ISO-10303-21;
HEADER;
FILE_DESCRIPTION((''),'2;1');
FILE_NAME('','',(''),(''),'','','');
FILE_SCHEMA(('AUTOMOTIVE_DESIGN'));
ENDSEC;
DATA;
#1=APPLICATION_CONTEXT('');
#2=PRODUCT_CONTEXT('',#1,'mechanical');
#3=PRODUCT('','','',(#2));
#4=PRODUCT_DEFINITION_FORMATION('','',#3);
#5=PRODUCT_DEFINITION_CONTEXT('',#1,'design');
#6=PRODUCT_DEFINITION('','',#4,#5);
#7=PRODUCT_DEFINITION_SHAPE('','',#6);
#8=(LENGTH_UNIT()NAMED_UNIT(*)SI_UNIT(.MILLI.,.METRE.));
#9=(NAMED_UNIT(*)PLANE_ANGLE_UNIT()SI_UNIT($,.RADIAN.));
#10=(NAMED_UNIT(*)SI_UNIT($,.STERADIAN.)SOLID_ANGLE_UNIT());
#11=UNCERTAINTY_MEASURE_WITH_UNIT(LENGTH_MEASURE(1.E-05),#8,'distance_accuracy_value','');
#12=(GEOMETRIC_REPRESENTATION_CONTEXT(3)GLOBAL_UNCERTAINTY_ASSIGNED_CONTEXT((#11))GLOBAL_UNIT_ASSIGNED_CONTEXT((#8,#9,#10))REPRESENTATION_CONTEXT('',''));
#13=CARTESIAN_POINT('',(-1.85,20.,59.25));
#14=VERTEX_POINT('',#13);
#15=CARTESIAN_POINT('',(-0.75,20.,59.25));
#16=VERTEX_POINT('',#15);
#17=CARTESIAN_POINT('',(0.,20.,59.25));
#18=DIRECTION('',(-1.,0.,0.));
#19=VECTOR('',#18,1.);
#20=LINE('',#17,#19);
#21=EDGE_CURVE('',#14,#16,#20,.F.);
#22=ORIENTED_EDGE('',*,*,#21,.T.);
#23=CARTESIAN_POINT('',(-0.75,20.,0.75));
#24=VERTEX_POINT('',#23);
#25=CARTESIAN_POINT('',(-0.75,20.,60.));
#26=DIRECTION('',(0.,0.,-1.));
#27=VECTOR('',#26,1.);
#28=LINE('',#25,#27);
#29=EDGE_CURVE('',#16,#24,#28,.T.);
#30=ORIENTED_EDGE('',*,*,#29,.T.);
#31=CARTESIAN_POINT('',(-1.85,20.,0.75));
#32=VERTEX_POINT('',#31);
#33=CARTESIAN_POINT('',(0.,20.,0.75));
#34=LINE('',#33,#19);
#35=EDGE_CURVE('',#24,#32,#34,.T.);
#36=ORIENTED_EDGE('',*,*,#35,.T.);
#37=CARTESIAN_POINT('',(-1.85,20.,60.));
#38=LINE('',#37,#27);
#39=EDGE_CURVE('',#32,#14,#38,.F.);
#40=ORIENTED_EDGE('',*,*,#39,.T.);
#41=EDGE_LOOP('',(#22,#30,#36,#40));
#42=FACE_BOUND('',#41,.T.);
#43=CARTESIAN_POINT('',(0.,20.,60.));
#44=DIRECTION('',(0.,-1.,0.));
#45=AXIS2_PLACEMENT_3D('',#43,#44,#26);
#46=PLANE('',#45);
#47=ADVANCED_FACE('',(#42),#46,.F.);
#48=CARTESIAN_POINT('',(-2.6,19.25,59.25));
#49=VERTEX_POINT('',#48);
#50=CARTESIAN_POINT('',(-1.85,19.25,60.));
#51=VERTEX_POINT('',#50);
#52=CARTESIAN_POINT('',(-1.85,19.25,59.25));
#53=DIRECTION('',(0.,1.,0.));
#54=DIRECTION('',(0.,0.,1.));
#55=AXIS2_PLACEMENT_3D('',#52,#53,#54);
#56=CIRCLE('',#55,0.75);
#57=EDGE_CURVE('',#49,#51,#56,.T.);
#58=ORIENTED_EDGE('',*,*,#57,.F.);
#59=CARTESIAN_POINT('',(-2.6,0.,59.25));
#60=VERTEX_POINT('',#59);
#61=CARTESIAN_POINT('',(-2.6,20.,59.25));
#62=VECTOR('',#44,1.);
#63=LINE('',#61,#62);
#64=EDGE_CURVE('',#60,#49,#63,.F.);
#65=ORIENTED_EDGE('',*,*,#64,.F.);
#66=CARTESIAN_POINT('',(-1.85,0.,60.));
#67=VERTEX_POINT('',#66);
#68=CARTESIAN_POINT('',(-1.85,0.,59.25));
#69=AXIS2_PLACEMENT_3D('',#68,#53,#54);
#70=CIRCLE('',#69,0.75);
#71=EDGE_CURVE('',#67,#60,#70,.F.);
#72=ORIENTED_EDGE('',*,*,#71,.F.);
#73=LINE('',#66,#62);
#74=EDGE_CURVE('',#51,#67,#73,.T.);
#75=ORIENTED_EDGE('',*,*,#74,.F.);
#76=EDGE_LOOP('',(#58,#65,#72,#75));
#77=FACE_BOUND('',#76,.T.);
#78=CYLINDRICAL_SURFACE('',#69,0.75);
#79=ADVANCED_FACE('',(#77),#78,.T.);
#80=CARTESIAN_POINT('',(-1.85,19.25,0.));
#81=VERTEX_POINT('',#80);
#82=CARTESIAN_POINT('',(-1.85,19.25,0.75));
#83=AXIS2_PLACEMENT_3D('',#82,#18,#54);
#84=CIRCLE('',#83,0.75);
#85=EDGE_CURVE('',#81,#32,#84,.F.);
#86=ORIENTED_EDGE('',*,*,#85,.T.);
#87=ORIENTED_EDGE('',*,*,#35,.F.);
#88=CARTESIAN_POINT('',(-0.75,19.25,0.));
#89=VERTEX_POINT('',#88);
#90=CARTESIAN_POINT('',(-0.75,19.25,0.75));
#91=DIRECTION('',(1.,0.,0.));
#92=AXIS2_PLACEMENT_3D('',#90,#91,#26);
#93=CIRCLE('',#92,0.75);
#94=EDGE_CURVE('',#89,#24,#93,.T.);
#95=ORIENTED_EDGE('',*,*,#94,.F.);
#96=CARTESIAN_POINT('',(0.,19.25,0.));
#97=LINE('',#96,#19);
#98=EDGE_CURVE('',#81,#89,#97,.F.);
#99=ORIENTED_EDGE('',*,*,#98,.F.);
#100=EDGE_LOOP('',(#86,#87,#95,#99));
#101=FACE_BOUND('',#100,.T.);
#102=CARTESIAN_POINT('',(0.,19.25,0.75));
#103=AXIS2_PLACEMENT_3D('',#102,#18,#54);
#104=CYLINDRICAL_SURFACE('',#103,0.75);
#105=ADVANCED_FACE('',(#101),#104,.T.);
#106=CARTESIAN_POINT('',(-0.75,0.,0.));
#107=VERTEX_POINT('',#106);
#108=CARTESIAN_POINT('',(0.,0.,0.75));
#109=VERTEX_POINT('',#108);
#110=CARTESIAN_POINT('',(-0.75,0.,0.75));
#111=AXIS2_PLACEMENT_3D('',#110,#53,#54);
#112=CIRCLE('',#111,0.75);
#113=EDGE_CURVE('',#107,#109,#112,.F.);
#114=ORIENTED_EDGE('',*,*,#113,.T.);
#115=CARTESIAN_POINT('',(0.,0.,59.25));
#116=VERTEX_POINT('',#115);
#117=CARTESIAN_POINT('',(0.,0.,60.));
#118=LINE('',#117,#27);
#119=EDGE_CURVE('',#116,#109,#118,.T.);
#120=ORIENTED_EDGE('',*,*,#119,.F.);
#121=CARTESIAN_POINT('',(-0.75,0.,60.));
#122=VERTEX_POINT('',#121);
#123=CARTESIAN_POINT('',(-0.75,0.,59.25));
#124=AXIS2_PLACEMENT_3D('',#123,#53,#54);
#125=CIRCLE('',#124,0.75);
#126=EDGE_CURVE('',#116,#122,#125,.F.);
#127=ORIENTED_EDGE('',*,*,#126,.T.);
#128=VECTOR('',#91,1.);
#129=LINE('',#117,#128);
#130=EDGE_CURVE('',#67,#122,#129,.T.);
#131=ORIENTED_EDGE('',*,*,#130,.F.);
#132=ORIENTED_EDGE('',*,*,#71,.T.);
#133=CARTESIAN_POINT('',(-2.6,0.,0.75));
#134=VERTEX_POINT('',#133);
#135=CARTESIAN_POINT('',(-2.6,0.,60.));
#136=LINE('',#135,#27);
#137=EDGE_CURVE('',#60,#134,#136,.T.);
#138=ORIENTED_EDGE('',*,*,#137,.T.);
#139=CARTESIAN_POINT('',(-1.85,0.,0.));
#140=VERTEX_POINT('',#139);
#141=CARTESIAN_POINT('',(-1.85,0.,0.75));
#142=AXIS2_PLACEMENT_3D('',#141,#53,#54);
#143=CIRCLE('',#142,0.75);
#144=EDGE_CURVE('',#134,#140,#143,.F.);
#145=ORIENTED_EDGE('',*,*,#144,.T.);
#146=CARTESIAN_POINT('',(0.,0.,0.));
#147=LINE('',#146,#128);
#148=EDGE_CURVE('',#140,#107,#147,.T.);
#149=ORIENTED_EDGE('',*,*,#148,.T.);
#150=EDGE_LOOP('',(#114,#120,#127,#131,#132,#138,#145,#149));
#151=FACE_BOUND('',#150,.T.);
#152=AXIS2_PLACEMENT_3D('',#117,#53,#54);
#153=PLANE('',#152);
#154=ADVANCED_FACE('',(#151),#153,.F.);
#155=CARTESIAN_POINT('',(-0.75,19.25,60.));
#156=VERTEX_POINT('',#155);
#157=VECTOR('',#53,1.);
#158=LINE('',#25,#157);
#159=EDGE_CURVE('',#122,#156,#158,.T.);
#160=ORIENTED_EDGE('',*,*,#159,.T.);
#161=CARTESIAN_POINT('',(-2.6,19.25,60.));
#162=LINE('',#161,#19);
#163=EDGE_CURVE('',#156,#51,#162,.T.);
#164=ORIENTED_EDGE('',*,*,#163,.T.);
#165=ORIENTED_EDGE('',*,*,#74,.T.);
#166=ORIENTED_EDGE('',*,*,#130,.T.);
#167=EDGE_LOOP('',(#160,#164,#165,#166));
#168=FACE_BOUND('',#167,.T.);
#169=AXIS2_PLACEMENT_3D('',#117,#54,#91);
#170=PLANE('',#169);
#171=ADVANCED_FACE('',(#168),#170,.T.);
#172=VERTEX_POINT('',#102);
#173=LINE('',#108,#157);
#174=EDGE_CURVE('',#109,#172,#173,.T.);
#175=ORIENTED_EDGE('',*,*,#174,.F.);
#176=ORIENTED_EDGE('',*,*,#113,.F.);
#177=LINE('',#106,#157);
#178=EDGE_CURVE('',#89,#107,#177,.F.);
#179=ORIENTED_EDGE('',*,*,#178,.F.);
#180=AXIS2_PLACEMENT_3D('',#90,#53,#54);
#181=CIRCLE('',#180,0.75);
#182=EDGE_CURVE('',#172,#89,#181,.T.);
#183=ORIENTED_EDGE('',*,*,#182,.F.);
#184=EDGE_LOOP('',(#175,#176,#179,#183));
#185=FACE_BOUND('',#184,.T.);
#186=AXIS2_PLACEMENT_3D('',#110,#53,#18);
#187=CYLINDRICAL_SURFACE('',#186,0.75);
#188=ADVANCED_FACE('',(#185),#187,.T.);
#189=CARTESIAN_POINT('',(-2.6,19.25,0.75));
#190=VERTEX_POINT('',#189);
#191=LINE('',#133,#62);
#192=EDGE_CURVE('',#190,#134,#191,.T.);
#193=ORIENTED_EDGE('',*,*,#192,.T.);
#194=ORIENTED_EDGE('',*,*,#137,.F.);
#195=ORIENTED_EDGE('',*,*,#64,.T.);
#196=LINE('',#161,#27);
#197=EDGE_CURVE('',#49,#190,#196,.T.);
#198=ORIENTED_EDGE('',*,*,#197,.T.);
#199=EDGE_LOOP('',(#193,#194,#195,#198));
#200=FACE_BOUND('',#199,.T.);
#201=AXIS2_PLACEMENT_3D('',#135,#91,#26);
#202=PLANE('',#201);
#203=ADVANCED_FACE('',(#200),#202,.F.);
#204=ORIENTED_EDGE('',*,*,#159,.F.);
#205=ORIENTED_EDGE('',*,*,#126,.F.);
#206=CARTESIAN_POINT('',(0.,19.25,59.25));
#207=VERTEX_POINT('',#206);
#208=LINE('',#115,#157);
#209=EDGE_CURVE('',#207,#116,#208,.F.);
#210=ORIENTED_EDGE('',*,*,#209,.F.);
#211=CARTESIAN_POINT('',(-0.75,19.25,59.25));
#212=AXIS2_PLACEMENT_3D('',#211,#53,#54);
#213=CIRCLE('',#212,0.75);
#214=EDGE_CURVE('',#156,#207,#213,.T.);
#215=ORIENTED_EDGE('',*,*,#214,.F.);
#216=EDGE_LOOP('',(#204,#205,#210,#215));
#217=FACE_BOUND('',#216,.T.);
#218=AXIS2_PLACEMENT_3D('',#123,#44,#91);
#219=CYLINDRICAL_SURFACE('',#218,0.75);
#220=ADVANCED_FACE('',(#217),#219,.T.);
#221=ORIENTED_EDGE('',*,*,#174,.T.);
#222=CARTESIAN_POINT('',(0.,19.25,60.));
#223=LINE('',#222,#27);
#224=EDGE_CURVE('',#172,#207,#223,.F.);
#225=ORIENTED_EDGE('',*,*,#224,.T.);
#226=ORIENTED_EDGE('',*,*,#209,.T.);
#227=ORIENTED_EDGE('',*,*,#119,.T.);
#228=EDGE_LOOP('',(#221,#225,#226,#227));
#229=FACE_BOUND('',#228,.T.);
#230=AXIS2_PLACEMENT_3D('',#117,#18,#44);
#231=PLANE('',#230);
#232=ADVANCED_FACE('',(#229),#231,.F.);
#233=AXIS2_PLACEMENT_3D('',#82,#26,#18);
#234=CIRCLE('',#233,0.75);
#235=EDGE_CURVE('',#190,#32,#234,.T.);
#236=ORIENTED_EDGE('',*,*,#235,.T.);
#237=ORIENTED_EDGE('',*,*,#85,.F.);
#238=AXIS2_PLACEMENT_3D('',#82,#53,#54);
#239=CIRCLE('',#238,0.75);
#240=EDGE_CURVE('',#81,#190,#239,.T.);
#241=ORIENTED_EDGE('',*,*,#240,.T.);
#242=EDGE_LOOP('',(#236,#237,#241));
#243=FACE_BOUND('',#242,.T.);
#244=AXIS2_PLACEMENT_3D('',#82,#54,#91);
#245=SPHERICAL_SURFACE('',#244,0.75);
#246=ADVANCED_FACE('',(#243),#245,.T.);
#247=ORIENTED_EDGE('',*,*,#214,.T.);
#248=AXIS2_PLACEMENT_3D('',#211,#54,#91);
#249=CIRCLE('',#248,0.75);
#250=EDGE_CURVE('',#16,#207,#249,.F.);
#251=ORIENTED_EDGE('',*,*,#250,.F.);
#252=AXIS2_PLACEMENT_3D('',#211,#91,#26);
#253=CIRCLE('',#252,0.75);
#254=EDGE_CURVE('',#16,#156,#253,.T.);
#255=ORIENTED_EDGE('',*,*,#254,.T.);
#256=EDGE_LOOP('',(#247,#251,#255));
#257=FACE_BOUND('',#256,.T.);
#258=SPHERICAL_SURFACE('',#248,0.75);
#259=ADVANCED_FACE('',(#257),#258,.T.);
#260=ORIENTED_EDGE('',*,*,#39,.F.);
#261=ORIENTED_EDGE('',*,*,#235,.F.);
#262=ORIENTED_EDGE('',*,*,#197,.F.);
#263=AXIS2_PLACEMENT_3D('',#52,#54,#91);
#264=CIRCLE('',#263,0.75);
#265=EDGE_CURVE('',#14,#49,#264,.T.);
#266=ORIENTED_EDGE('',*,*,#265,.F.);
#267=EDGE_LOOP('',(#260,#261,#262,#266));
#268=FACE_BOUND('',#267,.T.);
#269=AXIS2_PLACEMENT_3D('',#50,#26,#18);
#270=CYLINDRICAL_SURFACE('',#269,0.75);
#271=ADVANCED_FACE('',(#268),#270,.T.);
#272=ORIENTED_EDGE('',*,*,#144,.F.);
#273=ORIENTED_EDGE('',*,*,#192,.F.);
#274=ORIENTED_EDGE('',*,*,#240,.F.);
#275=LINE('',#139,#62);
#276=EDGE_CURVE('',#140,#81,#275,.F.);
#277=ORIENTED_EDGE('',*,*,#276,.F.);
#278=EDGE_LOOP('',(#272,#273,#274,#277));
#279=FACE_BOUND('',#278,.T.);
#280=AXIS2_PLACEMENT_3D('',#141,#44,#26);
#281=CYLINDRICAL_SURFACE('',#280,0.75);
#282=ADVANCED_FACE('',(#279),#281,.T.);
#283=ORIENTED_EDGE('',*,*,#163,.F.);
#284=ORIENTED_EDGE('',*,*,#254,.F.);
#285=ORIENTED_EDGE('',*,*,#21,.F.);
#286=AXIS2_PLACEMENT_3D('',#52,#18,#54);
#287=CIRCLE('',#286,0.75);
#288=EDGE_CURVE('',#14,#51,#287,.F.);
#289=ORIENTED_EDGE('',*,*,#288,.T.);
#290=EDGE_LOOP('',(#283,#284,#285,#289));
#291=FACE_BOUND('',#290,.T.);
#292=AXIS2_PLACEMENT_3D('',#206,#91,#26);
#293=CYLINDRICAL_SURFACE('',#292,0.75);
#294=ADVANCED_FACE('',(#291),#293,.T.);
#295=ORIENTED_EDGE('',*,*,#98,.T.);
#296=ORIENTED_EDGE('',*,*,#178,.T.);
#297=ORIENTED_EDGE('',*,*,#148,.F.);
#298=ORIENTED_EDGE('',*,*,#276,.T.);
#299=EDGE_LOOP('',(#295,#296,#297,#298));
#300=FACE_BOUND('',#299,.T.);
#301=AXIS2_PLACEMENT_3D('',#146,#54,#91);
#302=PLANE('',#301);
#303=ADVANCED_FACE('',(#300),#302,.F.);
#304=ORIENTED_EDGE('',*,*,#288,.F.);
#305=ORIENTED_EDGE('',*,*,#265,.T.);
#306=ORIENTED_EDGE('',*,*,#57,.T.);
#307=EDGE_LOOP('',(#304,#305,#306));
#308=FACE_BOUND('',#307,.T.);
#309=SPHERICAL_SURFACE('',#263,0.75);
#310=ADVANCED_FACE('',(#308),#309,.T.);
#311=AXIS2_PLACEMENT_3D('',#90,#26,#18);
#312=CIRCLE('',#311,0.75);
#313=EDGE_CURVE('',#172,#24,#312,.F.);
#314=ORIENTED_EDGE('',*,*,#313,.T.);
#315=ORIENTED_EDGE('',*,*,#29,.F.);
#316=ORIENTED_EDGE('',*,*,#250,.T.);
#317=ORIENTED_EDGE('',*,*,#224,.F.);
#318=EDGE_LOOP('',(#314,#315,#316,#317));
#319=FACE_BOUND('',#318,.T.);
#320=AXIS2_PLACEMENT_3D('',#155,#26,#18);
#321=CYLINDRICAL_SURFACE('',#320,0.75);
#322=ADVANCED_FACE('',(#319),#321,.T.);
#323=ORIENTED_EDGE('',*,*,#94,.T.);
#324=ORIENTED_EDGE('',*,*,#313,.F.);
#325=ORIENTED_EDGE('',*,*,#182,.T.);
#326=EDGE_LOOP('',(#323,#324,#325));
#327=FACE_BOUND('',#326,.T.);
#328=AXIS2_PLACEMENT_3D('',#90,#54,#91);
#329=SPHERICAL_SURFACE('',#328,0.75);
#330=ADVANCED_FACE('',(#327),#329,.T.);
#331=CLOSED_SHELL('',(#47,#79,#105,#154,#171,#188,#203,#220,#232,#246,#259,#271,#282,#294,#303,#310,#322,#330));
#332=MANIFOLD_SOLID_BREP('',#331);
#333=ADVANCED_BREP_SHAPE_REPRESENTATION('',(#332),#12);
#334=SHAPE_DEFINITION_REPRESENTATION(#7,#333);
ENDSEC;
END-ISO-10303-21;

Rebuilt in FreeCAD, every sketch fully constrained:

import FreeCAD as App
import Part
import Sketcher

V = App.Vector


def edges_at(feature, points):
    """Names of the edges that pass closest to the given points."""
    edges = feature.Shape.Edges
    near = lambda p: min(range(len(edges)), key=lambda i: edges[i].distToShape(Part.Vertex(*p))[0])
    return sorted({f"Edge{near(p) + 1}" for p in points})


def add_polygon(sketch, points):
    """Adds a closed chain of lines whose ends are joined by coincident constraints."""
    first, n = sketch.GeometryCount, len(points)
    for a, b in zip(points, points[1:] + points[:1]):
        sketch.addGeometry(Part.LineSegment(App.Vector(*a, 0), App.Vector(*b, 0)), False)
    for i in range(n):
        sketch.addConstraint(Sketcher.Constraint("Coincident", first + i, 2, first + (i + 1) % n, 1))

doc = App.newDocument("Part")
body = doc.addObject("PartDesign::Body", "Body")

sketch1 = body.newObject("Sketcher::SketchObject", "Sketch")
sketch1.AttachmentSupport = (doc.getObject("XY_Plane"), [""])
sketch1.MapMode = "FlatFace"
add_polygon(sketch1, [(-2.6, 20), (-2.6, 0), (0, 0), (0, 20)])
sketch1.addConstraint(Sketcher.Constraint("Vertical", 0))
sketch1.addConstraint(Sketcher.Constraint("Horizontal", 1))
sketch1.addConstraint(Sketcher.Constraint("Vertical", 2))
sketch1.addConstraint(Sketcher.Constraint("Horizontal", 3))
sketch1.addConstraint(Sketcher.Constraint("Coincident", 1, 2, -1, 1))
sketch1.addConstraint(Sketcher.Constraint("DistanceY", 0, 2, 0, 1, 20.0))
sketch1.addConstraint(Sketcher.Constraint("DistanceX", 1, 1, 1, 2, 2.6))
pad1 = body.newObject("PartDesign::Pad", "Pad")
pad1.Profile = sketch1
pad1.Length = 60
doc.recompute()

fillet = body.newObject("PartDesign::Fillet", "Fillet")
fillet.Base = (pad1, edges_at(pad1, [
    (-2.6, 10, 60),
    (0, 10, 60),
    (-2.6, 10, 0),
    (-1.3, 20, 0),
    (0, 10, 0),
    (-2.6, 20, 30),
    (0, 20, 30),
    (-1.3, 20, 60),
]))
fillet.Radius = 0.75

doc.recompute()
